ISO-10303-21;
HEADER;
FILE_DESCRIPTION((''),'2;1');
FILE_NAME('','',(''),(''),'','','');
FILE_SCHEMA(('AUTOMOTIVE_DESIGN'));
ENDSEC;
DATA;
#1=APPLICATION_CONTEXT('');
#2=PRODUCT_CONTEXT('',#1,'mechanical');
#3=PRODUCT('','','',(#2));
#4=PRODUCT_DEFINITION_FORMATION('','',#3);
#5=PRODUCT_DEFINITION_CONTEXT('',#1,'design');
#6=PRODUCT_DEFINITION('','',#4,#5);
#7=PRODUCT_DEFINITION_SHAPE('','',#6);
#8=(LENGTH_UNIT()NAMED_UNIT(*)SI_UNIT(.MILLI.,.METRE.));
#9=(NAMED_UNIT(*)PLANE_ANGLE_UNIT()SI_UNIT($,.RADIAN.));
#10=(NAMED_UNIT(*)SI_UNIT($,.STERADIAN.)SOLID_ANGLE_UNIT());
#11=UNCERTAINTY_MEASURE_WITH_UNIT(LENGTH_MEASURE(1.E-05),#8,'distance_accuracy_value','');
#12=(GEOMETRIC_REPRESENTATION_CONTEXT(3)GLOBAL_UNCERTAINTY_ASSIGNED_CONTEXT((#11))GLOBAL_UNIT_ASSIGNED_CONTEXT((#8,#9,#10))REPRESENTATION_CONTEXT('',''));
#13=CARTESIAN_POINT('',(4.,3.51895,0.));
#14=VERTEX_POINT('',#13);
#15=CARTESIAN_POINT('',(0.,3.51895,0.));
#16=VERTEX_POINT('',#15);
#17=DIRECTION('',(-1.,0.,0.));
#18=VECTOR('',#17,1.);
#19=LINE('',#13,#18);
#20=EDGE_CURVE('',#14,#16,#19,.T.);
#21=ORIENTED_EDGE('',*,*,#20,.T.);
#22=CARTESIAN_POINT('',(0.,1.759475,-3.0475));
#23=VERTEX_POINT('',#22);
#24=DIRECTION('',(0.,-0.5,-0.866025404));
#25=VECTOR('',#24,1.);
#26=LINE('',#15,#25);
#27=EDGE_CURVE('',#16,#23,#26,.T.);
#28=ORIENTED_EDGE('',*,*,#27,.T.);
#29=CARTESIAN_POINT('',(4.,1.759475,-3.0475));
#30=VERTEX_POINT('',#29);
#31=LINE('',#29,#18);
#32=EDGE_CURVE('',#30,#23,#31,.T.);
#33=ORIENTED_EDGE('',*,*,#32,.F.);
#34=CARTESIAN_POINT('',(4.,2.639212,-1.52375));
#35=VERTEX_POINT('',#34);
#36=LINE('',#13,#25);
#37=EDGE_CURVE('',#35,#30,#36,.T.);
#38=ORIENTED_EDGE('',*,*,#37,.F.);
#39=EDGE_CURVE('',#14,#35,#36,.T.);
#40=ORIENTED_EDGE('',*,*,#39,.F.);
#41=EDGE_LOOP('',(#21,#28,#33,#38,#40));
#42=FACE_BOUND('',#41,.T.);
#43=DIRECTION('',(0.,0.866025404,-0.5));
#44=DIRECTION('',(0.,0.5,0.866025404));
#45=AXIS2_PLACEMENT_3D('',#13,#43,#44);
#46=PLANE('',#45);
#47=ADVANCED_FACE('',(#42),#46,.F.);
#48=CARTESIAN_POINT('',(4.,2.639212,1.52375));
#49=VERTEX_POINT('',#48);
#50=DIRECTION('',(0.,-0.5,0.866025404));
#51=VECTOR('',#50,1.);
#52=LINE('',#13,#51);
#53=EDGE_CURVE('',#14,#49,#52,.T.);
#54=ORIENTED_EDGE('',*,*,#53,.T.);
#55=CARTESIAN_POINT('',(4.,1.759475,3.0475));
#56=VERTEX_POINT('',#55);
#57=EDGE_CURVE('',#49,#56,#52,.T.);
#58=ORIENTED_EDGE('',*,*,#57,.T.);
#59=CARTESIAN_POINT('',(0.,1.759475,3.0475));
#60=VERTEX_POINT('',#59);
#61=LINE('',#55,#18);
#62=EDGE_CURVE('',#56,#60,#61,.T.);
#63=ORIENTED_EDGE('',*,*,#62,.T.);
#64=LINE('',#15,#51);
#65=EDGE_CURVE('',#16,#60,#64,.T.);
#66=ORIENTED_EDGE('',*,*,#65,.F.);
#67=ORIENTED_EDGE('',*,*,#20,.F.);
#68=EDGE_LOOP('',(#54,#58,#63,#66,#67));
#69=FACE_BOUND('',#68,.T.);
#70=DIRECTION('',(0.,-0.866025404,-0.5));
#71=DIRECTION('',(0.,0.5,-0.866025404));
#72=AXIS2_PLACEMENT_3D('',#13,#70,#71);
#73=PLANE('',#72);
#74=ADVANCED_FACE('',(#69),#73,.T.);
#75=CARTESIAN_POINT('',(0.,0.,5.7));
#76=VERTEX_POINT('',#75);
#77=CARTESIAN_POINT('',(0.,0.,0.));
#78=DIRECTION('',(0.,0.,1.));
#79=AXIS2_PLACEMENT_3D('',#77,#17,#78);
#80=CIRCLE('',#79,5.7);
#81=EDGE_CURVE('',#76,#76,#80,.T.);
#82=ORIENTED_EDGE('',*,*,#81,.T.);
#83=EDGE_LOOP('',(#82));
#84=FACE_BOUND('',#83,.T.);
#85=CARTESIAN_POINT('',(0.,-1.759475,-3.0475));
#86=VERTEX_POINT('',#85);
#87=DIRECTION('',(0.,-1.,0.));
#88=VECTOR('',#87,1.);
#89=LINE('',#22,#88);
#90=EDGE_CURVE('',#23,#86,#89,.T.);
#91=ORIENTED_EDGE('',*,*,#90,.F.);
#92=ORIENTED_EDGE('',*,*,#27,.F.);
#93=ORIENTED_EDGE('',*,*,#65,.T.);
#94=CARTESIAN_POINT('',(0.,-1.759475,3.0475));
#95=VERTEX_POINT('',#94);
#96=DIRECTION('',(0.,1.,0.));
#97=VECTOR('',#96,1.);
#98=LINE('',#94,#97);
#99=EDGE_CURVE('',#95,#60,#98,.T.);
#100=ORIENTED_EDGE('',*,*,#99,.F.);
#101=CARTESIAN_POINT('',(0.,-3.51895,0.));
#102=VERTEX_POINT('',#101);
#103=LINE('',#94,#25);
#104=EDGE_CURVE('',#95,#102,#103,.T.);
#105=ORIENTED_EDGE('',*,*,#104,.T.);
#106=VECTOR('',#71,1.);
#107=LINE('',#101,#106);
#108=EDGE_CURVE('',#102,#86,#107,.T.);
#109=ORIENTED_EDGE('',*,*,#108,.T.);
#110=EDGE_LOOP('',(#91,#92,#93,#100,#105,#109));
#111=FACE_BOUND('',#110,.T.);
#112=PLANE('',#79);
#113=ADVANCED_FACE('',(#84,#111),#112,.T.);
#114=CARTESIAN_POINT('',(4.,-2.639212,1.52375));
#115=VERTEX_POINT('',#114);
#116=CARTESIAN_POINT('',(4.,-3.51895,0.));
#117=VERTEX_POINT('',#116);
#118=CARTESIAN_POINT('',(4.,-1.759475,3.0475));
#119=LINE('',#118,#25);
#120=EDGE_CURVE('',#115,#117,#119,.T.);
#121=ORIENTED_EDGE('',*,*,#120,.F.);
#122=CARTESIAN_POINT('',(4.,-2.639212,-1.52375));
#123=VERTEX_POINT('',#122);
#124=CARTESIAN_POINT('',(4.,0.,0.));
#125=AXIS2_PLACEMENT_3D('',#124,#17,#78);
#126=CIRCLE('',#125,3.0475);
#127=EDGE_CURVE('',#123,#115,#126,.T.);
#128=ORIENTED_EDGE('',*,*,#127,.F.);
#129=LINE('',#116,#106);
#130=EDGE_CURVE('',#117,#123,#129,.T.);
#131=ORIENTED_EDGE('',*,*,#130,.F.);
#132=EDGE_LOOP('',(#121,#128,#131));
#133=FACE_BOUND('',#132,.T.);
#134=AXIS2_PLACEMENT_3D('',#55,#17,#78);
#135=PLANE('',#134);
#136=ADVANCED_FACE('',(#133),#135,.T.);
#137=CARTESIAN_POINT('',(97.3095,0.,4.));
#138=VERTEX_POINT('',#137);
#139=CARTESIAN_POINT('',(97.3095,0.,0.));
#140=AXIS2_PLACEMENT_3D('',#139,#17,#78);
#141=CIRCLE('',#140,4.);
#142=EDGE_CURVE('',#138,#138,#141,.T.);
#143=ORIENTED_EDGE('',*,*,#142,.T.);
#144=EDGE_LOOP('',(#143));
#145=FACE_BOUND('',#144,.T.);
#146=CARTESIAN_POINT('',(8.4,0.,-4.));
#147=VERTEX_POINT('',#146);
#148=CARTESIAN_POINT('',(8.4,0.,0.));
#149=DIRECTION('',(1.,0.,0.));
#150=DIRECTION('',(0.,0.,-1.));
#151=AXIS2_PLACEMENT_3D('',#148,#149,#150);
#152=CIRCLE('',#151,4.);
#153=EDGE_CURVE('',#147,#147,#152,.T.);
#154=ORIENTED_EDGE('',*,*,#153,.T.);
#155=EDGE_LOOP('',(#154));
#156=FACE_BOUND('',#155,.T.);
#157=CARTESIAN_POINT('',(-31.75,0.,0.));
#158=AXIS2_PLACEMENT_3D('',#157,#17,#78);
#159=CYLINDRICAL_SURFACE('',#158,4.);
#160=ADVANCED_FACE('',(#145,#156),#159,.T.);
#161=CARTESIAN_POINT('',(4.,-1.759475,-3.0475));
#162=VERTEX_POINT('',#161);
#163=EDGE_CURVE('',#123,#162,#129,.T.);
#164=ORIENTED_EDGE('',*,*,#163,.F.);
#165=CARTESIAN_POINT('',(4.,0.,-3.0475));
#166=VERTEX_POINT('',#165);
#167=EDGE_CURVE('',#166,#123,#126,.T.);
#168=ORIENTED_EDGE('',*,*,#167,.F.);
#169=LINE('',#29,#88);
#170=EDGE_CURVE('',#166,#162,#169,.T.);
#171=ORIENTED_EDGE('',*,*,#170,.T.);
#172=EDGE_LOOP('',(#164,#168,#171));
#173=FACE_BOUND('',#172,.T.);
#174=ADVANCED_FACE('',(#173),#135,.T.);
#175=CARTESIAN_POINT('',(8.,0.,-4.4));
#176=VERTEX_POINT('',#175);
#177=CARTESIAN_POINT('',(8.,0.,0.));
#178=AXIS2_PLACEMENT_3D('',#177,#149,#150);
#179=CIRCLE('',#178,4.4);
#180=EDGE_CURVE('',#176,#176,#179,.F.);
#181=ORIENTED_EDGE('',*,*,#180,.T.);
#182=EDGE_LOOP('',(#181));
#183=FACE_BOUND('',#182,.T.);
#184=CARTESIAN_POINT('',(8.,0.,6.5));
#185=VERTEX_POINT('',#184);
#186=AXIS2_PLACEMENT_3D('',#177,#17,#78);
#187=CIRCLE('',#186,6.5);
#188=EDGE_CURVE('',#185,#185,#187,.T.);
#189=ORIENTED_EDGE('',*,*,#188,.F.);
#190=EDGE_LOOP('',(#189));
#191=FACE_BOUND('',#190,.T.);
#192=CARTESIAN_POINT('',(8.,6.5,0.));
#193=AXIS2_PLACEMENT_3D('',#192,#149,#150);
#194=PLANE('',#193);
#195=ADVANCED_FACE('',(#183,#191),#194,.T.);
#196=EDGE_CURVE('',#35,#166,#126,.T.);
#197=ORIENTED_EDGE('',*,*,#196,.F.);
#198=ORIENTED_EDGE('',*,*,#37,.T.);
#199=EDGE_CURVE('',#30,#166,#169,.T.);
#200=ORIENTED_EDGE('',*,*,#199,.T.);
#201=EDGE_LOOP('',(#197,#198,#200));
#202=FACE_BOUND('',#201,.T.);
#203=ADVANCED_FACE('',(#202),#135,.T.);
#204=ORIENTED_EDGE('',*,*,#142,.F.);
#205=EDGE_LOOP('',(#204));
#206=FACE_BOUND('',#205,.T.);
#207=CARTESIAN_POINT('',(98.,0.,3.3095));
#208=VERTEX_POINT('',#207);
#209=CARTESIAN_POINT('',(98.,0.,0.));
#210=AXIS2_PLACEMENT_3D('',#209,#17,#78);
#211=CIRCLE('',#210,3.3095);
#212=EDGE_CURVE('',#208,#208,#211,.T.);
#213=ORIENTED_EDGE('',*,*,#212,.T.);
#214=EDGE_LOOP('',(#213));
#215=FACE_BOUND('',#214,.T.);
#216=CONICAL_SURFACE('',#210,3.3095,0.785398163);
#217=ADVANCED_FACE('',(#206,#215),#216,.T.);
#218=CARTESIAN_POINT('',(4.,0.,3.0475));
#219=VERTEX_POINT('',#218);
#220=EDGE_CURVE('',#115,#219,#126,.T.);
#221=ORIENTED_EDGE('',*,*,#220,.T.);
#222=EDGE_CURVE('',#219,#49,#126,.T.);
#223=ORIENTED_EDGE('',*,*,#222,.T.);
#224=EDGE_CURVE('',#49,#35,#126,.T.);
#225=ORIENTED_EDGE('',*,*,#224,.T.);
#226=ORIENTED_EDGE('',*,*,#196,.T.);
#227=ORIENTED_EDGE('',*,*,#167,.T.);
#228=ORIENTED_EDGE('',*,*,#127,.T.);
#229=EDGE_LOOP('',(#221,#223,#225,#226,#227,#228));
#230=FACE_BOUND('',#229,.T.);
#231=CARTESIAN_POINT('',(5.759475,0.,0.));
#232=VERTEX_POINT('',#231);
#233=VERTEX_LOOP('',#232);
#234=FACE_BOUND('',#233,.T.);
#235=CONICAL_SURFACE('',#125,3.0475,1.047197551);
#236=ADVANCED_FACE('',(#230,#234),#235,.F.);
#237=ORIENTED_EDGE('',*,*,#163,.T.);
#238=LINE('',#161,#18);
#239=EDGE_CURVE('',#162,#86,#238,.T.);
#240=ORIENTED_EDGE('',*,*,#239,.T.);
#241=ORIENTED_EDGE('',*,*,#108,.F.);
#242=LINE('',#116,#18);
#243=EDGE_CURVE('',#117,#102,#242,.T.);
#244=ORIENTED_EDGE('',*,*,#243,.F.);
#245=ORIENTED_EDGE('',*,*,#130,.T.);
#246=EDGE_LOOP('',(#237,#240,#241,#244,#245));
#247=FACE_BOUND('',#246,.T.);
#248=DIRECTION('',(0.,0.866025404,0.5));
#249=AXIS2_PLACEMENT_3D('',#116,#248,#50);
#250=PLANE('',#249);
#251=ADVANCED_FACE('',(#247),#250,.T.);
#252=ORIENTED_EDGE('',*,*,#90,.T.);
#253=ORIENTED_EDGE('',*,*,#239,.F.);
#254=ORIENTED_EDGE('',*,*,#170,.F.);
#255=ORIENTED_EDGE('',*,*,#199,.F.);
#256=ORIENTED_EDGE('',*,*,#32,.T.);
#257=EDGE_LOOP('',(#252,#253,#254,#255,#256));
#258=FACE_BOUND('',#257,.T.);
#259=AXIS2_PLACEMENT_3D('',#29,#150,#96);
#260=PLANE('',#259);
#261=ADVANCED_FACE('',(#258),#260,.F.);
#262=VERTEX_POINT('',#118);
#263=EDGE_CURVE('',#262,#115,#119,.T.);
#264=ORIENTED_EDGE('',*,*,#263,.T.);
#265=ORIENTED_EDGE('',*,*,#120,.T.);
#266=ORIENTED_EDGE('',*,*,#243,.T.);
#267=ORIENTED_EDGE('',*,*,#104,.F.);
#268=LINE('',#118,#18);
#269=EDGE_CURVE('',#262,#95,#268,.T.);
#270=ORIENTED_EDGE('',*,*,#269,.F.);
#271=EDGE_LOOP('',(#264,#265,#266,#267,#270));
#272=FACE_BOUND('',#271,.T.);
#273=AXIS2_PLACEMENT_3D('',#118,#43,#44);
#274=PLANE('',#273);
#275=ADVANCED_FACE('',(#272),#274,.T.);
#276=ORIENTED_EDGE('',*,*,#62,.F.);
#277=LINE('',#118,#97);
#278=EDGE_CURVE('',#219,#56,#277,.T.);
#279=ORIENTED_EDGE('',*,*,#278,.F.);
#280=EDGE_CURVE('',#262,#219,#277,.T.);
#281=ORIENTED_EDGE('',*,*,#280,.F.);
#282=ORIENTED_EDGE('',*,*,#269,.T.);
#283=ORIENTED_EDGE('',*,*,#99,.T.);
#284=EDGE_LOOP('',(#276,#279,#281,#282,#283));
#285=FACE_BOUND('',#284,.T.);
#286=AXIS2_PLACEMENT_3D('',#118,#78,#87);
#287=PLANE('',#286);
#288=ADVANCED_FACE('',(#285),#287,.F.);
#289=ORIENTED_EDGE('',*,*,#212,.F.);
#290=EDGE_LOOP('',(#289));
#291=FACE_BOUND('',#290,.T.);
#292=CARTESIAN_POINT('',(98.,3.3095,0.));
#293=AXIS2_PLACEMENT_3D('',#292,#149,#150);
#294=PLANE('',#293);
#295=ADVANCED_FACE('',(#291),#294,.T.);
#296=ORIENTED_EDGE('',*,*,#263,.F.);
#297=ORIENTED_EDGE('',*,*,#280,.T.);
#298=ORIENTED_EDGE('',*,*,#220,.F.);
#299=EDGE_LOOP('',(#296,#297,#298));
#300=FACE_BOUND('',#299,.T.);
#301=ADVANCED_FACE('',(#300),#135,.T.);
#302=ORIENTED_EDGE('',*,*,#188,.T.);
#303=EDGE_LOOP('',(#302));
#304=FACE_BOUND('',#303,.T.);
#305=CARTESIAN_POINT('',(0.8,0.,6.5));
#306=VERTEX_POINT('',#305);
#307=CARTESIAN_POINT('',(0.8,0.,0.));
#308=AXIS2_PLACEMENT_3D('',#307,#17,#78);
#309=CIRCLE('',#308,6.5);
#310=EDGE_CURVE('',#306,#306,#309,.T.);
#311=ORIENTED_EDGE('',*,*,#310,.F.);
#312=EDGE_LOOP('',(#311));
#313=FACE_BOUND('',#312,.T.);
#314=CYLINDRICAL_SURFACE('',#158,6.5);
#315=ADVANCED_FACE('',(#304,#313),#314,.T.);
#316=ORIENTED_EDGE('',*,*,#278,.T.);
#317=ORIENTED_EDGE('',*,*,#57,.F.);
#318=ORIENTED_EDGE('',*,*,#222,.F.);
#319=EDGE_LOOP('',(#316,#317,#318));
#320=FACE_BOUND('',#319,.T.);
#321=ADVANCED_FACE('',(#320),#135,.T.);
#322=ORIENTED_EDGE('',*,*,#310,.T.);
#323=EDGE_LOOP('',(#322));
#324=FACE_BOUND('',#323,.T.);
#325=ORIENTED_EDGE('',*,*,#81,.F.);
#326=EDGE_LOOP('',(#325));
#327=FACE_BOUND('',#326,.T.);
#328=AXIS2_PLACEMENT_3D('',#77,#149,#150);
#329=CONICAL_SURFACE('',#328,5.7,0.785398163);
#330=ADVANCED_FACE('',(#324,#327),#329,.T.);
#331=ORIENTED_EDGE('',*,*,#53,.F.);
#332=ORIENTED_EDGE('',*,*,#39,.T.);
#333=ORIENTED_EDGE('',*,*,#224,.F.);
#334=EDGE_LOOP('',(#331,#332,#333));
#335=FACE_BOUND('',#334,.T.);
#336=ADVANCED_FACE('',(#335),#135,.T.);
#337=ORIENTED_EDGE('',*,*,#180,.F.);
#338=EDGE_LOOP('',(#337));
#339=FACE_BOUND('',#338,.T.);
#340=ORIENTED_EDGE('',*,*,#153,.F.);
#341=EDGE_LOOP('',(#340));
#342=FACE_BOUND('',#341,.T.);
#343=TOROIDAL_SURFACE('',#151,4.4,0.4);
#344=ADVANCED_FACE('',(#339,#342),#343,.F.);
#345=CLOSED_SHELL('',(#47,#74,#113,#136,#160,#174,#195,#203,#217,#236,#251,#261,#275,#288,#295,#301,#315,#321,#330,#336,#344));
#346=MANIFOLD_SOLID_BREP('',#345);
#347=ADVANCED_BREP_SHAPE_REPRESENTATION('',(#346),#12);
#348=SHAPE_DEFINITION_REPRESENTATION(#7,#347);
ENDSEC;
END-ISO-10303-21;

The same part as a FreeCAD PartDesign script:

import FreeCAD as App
import Part
import Sketcher
from FreeCAD import Vector
Q = App.Units.Quantity


def edges_at(feature, points):
    """Names of the edges that pass closest to the given points."""
    edges = feature.Shape.Edges
    near = lambda p: min(range(len(edges)), key=lambda i: edges[i].distToShape(Part.Vertex(*p))[0])
    return sorted({f"Edge{near(p) + 1}" for p in points})


def add_polygon(sketch, points):
    """Adds a closed chain of lines whose ends are joined by coincident constraints."""
    first, n = sketch.GeometryCount, len(points)
    for a, b in zip(points, points[1:] + points[:1]):
        sketch.addGeometry(Part.LineSegment(App.Vector(*a, 0), App.Vector(*b, 0)), False)
    for i in range(n):
        sketch.addConstraint(Sketcher.Constraint("Coincident", first + i, 2, first + (i + 1) % n, 1))

doc = App.newDocument("Part")
body = doc.addObject("PartDesign::Body", "Body")

# Sketch on XY plane
sketch1 = doc.addObject("Sketcher::SketchObject", "Sketch")
body.addObject(sketch1)
sketch1.AttachmentSupport = (doc.XY_Plane, [""])
sketch1.MapMode = "FlatFace"
add_polygon(sketch1, [(0, 5.7), (0, 0), (98, 0), (98, 3.3), (97.3, 4), (8, 4), (8, 6.5), (0.8, 6.5)])  # lines 0-7
sketch1.addConstraint(Sketcher.Constraint("Vertical", 0))
sketch1.addConstraint(Sketcher.Constraint("Horizontal", 1))
sketch1.addConstraint(Sketcher.Constraint("Vertical", 2))
sketch1.addConstraint(Sketcher.Constraint("Horizontal", 4))
sketch1.addConstraint(Sketcher.Constraint("Vertical", 5))
sketch1.addConstraint(Sketcher.Constraint("Horizontal", 6))
sketch1.addConstraint(Sketcher.Constraint("Coincident", 0, 2, -1, 1))
sketch1.addConstraint(Sketcher.Constraint("Perpendicular", 3, 7))
sketch1.addConstraint(Sketcher.Constraint("DistanceX", 1, 1, 1, 2, Q("98 mm")))
sketch1.addConstraint(Sketcher.Constraint("Angle", 3, Q("135 deg")))
sketch1.addConstraint(Sketcher.Constraint("DistanceX", 6, 2, 6, 1, Q("7.2 mm")))
sketch1.addConstraint(Sketcher.Constraint("DistanceY", 0, 2, 0, 1, Q("5.7 mm")))
sketch1.addConstraint(Sketcher.Constraint("DistanceY", 5, 1, 5, 2, Q("2.5 mm")))
sketch1.addConstraint(Sketcher.Constraint("DistanceY", -1, 1, 3, 2, Q("4 mm")))
sketch1.addConstraint(Sketcher.Constraint("DistanceX", 4, 2, 4, 1, Q("89.3095 mm")))
revolution = doc.addObject("PartDesign::Revolution", "Revolution")
body.addObject(revolution)
revolution.Profile = sketch1
revolution.ReferenceAxis = (sketch1, ["H_Axis"])
revolution.Angle = 360
doc.recompute()

fillet = doc.addObject("PartDesign::Fillet", "Fillet")
body.addObject(fillet)
fillet.Base = (revolution, edges_at(revolution, [(8, 0, -4)]))
fillet.Radius = 0.4

# Sketch on XY plane
sketch2 = doc.addObject("Sketcher::SketchObject", "Sketch001")
body.addObject(sketch2)
sketch2.AttachmentSupport = (doc.XY_Plane, [""])
sketch2.MapMode = "FlatFace"
add_polygon(sketch2, [(4, 3), (0, 3), (0, 0), (5.8, 0)])  # lines 0-3
sketch2.addConstraint(Sketcher.Constraint("Horizontal", 0))
sketch2.addConstraint(Sketcher.Constraint("Vertical", 1))
sketch2.addConstraint(Sketcher.Constraint("Horizontal", 2))
sketch2.addConstraint(Sketcher.Constraint("Coincident", 1, 2, -1, 1))
sketch2.addConstraint(Sketcher.Constraint("DistanceX", 0, 2, 0, 1, Q("4 mm")))
sketch2.addConstraint(Sketcher.Constraint("Angle", 3, Q("120 deg")))
sketch2.addConstraint(Sketcher.Constraint("DistanceY", 1, 2, 1, 1, Q("3.0475 mm")))
groove = doc.addObject("PartDesign::Groove", "Groove")
body.addObject(groove)
groove.Profile = sketch2
groove.ReferenceAxis = (sketch2, ["H_Axis"])
groove.Angle = 360

# Sketch on YZ plane
sketch3 = doc.addObject("Sketcher::SketchObject", "Sketch002")
body.addObject(sketch3)
sketch3.AttachmentSupport = (doc.YZ_Plane, [""])
sketch3.MapMode = "FlatFace"
add_polygon(sketch3, [(3.5, 0), (1.8, -3), (-1.8, -3), (-3.5, 0), (-1.8, 3), (1.8, 3)])  # lines 0-5
sketch3.addConstraint(Sketcher.Constraint("Horizontal", 1))
sketch3.addConstraint(Sketcher.Constraint("Horizontal", 4))
sketch3.addConstraint(Sketcher.Constraint("Symmetric", 0, 2, 3, 2, -1, 1))
sketch3.addConstraint(Sketcher.Constraint("Symmetric", 2, 2, 5, 2, -1, 1))
sketch3.addConstraint(Sketcher.Constraint("PointOnObject", 2, 2, -1))
sketch3.addConstraint(Sketcher.Constraint("Parallel", 2, 5))
sketch3.addConstraint(Sketcher.Constraint("Vertical", 1, 2, 3, 2))
sketch3.addConstraint(Sketcher.Constraint("Angle", 0, Q("-120 deg")))
sketch3.addConstraint(Sketcher.Constraint("DistanceY", 1, 2, 3, 2, Q("6.095 mm")))
sketch3.addConstraint(Sketcher.Constraint("DistanceX", 1, 2, 1, 1, Q("3.51895 mm")))
pocket1 = doc.addObject("PartDesign::Pocket", "Pocket")
body.addObject(pocket1)
pocket1.Profile = sketch3
pocket1.Length = 4
pocket1.Reversed = True

doc.recompute()
